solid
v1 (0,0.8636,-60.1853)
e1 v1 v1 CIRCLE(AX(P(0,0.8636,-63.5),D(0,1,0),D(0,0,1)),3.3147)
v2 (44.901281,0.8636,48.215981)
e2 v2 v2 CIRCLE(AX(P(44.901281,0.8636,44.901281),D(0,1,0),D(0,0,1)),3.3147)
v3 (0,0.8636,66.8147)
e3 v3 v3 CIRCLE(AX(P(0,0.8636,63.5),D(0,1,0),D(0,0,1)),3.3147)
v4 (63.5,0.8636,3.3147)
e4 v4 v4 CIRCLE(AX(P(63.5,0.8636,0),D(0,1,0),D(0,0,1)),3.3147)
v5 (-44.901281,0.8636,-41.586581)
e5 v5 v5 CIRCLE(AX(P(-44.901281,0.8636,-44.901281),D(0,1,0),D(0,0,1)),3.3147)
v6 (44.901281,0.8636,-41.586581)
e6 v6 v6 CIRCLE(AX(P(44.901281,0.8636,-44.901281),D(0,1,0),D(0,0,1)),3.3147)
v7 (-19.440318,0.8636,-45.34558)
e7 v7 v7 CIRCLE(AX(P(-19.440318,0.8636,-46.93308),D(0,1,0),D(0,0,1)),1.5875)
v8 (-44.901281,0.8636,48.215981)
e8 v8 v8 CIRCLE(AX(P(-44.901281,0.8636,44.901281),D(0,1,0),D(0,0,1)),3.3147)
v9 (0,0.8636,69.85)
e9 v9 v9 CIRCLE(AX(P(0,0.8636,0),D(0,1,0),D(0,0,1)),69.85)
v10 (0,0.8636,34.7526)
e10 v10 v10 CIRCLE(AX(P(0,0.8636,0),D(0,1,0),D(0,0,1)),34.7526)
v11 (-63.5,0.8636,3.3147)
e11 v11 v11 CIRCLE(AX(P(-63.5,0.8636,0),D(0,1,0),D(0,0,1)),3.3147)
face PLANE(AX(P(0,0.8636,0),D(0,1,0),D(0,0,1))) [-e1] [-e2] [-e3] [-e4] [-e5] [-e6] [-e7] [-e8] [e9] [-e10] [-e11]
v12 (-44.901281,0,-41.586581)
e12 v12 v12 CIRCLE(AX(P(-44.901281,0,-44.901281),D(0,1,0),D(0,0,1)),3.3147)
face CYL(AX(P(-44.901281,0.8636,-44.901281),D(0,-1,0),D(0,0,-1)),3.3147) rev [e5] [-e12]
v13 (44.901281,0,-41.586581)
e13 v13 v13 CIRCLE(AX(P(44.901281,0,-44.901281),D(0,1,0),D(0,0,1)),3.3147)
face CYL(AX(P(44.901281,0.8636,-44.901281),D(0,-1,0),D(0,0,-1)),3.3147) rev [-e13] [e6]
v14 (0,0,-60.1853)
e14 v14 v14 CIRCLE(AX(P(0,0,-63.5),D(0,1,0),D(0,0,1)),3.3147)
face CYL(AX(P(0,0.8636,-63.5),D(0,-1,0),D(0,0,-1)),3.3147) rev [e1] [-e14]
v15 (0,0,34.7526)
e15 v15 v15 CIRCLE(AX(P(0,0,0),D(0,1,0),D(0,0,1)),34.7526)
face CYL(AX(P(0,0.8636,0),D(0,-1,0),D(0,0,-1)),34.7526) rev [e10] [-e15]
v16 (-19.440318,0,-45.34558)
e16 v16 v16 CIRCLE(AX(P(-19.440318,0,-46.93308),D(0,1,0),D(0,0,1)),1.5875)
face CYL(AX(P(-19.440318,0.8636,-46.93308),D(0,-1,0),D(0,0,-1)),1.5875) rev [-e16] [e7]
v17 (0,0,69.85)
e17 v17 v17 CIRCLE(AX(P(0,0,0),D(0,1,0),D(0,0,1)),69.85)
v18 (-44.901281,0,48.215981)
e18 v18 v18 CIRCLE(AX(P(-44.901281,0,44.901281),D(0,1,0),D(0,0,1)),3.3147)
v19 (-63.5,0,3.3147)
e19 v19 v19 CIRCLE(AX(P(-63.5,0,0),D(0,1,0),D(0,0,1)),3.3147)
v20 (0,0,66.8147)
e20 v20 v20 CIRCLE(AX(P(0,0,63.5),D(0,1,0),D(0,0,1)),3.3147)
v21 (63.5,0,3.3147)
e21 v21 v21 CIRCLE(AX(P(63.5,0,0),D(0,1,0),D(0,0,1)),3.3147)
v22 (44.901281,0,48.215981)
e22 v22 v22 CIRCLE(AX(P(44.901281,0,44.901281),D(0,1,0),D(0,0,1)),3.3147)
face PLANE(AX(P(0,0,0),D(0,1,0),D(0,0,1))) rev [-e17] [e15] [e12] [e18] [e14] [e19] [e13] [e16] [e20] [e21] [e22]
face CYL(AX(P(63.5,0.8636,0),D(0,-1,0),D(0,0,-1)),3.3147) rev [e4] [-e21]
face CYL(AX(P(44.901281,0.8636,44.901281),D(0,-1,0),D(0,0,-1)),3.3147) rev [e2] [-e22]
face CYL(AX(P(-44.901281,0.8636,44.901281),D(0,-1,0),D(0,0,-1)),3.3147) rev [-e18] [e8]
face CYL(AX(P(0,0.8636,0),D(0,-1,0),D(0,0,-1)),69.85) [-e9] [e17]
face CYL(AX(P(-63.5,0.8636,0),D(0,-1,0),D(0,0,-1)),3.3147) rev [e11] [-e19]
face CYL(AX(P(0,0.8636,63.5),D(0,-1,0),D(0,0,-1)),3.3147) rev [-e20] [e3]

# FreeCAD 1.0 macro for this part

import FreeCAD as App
import Part
import Sketcher
from FreeCAD import Vector
Q = App.Units.Quantity

doc = App.newDocument("Part")
body = doc.addObject("PartDesign::Body", "Body")

# Sketch on XZ plane
sketch1 = body.newObject("Sketcher::SketchObject", "Sketch")
sketch1.AttachmentSupport = (doc.getObject("XZ_Plane"), [""])
sketch1.MapMode = "FlatFace"
sketch1.addGeometry([
    Part.Circle(Vector(0, 0, 0), Vector(0, 0, 1), 69.8),  # 0
    Part.Circle(Vector(-44.9, -44.9, 0), Vector(0, 0, 1), 3.3),  # 1
    Part.Circle(Vector(-19.4, -46.9, 0), Vector(0, 0, 1), 1.6),  # 2
    Part.Circle(Vector(-63.5, 0, 0), Vector(0, 0, 1), 3.3),  # 3
    Part.Circle(Vector(-44.9, 44.9, 0), Vector(0, 0, 1), 3.3),  # 4
    Part.Circle(Vector(0, -63.5, 0), Vector(0, 0, 1), 3.3),  # 5
    Part.Circle(Vector(0, 0, 0), Vector(0, 0, 1), 34.8),  # 6
    Part.Circle(Vector(44.9, -44.9, 0), Vector(0, 0, 1), 3.3),  # 7
    Part.Circle(Vector(63.5, 0, 0), Vector(0, 0, 1), 3.3),  # 8
    Part.Circle(Vector(0, 63.5, 0), Vector(0, 0, 1), 3.3),  # 9
    Part.Circle(Vector(44.9, 44.9, 0), Vector(0, 0, 1), 3.3),  # 10
], False)
sketch1.addConstraint([
    Sketcher.Constraint("Coincident", 0, 3, -1, 1),
    Sketcher.Constraint("Coincident", 6, 3, -1, 1),
    Sketcher.Constraint("Equal", 1, 3),
    Sketcher.Constraint("Equal", 3, 4),
    Sketcher.Constraint("Equal", 4, 5),
    Sketcher.Constraint("Equal", 5, 7),
    Sketcher.Constraint("Equal", 7, 8),
    Sketcher.Constraint("Equal", 8, 9),
    Sketcher.Constraint("Equal", 9, 10),
    Sketcher.Constraint("Symmetric", 4, 3, 7, 3, -1, 1),
    Sketcher.Constraint("Symmetric", 3, 3, 8, 3, -1, 1),
    Sketcher.Constraint("Symmetric", 5, 3, 9, 3, -1, 1),
    Sketcher.Constraint("Symmetric", 1, 3, 10, 3, -1, 1),
    Sketcher.Constraint("Symmetric", 1, 3, 7, 3, -2),
    Sketcher.Constraint("PointOnObject", 3, 3, -1),
    Sketcher.Constraint("PointOnObject", 5, 3, -2),
    Sketcher.Constraint("Diameter", 0, Q("5.5 in")),
    Sketcher.Constraint("Diameter", 1, Q("0.261 in")),
    Sketcher.Constraint("Diameter", 2, Q("0.125 in")),
    Sketcher.Constraint("DistanceX", 3, 3, -1, 1, Q("2.5 in")),
    Sketcher.Constraint("DistanceY", 5, 3, -1, 1, Q("2.5 in")),
    Sketcher.Constraint("Diameter", 6, 69.5052),
    Sketcher.Constraint("DistanceX", 1, 3, 2, 3, Q("1.0024001 in")),
    Sketcher.Constraint("DistanceY", 2, 3, 1, 3, 2.0318),
    Sketcher.Constraint("DistanceX", 2, 3, 7, 3, 64.341599),
    Sketcher.Constraint("DistanceY", 1, 3, -1, 1, 44.901281),
])
pad1 = body.newObject("PartDesign::Pad", "Pad")
pad1.Profile = sketch1
pad1.Length = Q("0.034 in")
pad1.Reversed = True

doc.recompute()
